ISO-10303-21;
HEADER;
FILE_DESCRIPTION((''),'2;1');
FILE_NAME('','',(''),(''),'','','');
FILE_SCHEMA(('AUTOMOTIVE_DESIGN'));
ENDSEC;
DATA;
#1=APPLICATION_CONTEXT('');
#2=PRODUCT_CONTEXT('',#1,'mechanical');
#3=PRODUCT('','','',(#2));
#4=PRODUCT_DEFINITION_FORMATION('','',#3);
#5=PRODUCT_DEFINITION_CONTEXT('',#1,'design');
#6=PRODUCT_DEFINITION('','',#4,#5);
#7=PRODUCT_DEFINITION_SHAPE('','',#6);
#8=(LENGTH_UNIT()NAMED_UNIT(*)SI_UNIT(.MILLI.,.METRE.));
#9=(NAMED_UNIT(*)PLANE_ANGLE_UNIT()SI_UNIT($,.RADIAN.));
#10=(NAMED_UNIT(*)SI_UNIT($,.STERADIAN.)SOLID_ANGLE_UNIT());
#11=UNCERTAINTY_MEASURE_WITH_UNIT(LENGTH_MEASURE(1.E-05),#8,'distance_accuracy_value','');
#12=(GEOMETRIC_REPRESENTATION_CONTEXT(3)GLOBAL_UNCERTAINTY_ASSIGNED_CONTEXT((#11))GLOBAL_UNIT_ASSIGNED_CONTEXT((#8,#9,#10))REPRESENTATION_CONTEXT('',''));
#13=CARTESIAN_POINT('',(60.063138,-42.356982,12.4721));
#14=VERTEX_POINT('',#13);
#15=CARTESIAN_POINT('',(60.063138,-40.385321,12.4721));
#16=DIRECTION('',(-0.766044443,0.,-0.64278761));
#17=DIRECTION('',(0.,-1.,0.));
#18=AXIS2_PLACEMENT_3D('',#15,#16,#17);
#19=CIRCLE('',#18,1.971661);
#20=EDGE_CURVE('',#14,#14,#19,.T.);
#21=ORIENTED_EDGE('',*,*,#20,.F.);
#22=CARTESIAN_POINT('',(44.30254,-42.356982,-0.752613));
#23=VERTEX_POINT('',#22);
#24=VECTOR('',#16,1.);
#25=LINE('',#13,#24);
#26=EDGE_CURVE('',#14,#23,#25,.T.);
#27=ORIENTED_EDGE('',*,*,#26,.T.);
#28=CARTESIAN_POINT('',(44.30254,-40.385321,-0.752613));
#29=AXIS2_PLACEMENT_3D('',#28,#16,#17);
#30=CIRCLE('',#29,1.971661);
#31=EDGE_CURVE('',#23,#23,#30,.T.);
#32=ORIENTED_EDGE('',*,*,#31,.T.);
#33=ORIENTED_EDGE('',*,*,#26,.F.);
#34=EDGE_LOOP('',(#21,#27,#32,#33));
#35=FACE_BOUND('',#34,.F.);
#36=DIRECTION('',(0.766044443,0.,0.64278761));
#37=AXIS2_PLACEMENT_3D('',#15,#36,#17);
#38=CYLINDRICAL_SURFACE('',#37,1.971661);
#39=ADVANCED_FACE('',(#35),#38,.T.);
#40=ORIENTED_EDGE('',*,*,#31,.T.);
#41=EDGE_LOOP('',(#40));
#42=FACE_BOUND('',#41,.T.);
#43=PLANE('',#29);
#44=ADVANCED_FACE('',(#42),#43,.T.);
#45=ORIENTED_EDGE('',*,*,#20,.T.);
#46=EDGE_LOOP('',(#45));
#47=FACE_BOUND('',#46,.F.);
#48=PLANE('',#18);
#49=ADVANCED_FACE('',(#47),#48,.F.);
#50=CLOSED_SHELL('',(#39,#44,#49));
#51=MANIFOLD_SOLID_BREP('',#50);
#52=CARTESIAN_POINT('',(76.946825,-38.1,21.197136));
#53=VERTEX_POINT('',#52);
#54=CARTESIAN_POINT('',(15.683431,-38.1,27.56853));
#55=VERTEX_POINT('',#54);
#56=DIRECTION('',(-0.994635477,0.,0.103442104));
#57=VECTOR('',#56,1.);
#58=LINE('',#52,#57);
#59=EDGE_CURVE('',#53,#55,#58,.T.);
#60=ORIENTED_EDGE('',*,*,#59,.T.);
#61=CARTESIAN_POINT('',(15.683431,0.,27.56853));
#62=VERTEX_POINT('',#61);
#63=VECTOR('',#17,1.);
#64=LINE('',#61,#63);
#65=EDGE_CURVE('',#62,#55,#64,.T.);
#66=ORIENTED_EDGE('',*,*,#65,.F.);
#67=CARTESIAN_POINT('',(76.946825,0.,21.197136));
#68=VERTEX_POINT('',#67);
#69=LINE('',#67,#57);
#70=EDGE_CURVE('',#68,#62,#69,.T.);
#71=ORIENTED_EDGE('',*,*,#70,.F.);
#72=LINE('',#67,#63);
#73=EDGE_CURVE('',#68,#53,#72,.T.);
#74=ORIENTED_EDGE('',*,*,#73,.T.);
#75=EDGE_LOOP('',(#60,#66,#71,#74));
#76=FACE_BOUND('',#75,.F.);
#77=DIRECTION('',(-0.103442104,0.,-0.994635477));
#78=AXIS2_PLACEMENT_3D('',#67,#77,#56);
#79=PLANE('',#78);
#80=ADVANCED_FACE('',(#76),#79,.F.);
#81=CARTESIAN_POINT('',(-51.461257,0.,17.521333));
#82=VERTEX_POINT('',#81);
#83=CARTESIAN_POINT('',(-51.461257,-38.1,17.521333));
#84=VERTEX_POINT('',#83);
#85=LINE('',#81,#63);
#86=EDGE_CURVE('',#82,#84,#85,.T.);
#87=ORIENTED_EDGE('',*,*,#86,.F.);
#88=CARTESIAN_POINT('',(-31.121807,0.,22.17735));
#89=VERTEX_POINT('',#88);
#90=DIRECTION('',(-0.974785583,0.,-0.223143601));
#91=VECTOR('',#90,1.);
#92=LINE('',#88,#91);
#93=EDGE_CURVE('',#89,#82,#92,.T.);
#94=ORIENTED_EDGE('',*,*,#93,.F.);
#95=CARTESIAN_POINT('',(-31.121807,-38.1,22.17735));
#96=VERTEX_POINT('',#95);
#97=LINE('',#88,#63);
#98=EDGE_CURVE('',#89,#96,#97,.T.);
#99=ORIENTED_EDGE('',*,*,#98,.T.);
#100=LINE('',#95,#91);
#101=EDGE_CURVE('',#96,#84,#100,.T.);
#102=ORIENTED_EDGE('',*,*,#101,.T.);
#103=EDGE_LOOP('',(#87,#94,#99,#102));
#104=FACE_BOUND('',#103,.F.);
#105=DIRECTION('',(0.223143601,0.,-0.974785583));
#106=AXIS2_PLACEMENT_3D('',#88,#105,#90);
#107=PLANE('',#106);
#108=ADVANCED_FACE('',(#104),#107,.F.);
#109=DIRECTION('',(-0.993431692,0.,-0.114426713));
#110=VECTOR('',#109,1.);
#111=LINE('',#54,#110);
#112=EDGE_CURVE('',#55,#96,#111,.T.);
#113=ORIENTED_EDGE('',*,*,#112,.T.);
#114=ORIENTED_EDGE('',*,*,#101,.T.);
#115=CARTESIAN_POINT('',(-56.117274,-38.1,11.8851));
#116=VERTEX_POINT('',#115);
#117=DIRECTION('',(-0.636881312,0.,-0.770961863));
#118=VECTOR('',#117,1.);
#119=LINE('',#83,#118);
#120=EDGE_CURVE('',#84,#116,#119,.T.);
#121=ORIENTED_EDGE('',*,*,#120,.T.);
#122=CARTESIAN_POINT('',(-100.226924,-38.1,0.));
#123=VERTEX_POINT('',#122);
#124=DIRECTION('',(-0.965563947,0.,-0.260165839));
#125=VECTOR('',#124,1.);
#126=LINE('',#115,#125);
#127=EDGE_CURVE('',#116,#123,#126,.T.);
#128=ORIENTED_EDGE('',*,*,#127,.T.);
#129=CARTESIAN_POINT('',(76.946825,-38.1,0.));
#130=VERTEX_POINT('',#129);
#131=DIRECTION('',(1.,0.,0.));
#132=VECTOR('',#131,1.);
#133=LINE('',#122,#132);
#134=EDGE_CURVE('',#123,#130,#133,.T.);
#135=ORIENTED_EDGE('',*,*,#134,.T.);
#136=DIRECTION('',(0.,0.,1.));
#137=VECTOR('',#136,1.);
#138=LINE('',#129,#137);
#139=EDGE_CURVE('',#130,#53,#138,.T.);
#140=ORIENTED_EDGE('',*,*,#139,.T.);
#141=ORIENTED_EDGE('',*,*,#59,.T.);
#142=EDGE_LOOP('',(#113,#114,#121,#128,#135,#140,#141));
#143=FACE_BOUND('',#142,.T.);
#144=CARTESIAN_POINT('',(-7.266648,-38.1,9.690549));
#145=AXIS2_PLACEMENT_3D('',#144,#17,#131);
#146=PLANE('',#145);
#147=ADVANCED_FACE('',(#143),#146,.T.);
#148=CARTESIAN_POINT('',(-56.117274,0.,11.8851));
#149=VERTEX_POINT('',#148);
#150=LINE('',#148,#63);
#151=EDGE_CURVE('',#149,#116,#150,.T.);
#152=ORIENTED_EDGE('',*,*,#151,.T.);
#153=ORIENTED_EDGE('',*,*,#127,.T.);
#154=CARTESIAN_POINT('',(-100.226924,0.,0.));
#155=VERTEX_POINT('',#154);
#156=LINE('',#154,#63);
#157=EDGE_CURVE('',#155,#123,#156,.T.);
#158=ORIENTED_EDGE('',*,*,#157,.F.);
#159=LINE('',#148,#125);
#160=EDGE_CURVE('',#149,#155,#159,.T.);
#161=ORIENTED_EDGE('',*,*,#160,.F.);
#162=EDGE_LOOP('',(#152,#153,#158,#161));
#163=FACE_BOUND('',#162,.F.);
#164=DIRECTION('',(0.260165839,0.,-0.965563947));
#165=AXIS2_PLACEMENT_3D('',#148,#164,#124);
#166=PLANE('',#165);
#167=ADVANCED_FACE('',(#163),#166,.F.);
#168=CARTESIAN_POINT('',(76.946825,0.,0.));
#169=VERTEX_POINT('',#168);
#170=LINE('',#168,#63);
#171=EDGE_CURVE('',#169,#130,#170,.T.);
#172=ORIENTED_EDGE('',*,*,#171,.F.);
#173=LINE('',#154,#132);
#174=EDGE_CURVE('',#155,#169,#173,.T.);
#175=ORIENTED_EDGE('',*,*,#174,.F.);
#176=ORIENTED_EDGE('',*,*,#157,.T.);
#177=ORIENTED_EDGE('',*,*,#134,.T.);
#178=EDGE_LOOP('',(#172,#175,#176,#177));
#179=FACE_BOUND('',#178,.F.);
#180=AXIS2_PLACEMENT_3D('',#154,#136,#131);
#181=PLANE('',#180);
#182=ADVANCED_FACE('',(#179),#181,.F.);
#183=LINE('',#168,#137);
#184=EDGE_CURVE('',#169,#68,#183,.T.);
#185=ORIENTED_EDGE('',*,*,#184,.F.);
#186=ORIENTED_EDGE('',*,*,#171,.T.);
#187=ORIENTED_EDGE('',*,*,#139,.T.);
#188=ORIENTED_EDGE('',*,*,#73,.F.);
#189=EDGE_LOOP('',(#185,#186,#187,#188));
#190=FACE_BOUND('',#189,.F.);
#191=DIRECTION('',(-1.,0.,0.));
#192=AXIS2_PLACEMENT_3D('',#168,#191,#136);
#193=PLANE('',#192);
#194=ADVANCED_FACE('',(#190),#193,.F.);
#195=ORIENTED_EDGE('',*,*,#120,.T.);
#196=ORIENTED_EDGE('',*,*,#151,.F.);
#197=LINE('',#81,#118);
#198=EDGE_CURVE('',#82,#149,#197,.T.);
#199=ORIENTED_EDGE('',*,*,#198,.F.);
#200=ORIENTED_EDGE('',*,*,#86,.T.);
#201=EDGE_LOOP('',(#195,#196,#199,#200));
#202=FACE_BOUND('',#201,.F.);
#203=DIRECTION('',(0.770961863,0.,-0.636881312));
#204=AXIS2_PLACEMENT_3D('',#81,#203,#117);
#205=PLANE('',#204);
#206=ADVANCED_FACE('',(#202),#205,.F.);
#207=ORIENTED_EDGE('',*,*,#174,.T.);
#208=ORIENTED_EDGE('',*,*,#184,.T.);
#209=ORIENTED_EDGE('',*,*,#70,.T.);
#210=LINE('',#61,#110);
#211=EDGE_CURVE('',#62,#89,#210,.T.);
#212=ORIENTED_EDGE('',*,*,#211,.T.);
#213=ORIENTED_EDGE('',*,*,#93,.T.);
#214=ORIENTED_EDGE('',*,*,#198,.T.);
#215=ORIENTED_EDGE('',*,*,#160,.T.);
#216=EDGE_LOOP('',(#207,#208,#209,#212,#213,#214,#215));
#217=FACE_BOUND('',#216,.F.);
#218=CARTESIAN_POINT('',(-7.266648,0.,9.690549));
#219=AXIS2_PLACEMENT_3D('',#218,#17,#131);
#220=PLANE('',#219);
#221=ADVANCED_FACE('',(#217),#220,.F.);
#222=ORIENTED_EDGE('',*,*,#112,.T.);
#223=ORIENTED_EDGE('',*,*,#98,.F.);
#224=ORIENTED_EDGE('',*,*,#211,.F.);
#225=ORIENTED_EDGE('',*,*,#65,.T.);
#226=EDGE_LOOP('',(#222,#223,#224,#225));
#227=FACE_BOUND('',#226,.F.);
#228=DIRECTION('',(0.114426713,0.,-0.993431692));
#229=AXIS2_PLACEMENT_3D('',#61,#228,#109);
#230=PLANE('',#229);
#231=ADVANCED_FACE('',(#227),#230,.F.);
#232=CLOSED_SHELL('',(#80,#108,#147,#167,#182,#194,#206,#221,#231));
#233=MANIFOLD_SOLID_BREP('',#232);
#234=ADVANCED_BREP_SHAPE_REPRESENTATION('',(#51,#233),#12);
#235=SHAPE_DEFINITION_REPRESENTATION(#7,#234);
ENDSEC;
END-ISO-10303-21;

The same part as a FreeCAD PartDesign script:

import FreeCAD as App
import Part
import Sketcher

V = App.Vector
Q = App.Units.Quantity


def add_polygon(sketch, points):
    """Adds a closed chain of lines whose ends are joined by coincident constraints."""
    first, n = sketch.GeometryCount, len(points)
    for a, b in zip(points, points[1:] + points[:1]):
        sketch.addGeometry(Part.LineSegment(App.Vector(*a, 0), App.Vector(*b, 0)), False)
    for i in range(n):
        sketch.addConstraint(Sketcher.Constraint("Coincident", first + i, 2, first + (i + 1) % n, 1))

doc = App.newDocument("Part")
body = doc.addObject("PartDesign::Body", "Body")

# Sketch on XZ plane
sketch1 = doc.addObject("Sketcher::SketchObject", "Sketch")
body.addObject(sketch1)
sketch1.AttachmentSupport = (doc.XZ_Plane, [""])
sketch1.MapMode = "FlatFace"
add_polygon(sketch1, [(-56, 12), (-100, 0), (77, 0), (77, 21), (16, 28), (-31, 22), (-51, 18)])  # lines 0-6
sketch1.addConstraint([
    Sketcher.Constraint("Horizontal", 1),
    Sketcher.Constraint("Vertical", 2),
    Sketcher.Constraint("PointOnObject", 0, 2, -1),
    Sketcher.Constraint("DistanceX", 0, 2, 3, 2, Q("4.5633998 in")),
    Sketcher.Constraint("DistanceX", 1, 1, 1, 2, Q("177.173749 mm")),
    Sketcher.Constraint("DistanceY", -1, 1, 6, 2, Q("11.8851 mm")),
    Sketcher.Constraint("DistanceX", 6, 2, 2, 2, Q("133.064099 mm")),
    Sketcher.Constraint("Distance", 6, Q("7.310651 mm")),
    Sketcher.Constraint("DistanceY", 2, 1, 2, 2, Q("21.197136 mm")),
    Sketcher.Constraint("DistanceX", -1, 1, 3, 2, Q("15.683431 mm")),
    Sketcher.Constraint("DistanceY", -1, 1, 3, 2, Q("27.56853 mm")),
    Sketcher.Constraint("DistanceY", -1, 1, 4, 2, Q("22.17735 mm")),
    Sketcher.Constraint("DistanceX", 4, 2, 3, 2, Q("46.805238 mm")),
    Sketcher.Constraint("DistanceX", 5, 2, 4, 2, Q("20.33945 mm")),
])
pad1 = doc.addObject("PartDesign::Pad", "Pad")
body.addObject(pad1)
pad1.Profile = sketch1
pad1.Length = Q("1.5 in")
body2 = doc.addObject("PartDesign::Body", "Body001")

# Sketch on an angled plane
sketch2 = doc.addObject("Sketcher::SketchObject", "Sketch001")
body2.addObject(sketch2)
sketch2.Placement = App.Placement(V(41.387806, 0, 34.728493), App.Rotation(V(0, -1, 0), V(-0.64278761, 0, 0.766044443), V(-0.766044443, 0, -0.64278761), "ZXY"))
sketch2.addGeometry(Part.Circle(V(40.4, -29.1, 0), V(0, 0, 1), 2), False)
sketch2.addConstraint([
    Sketcher.Constraint("Diameter", 0, Q("3.943322 mm")),
    Sketcher.Constraint("DistanceX", -1, 1, 0, 3, Q("40.385321 mm")),
    Sketcher.Constraint("DistanceY", 0, 3, -1, 1, Q("29.053658 mm")),
])
pad2 = doc.addObject("PartDesign::Pad", "Pad001")
body2.addObject(pad2)
pad2.Profile = sketch2
pad2.Length = Q("0.81 in")

doc.recompute()
